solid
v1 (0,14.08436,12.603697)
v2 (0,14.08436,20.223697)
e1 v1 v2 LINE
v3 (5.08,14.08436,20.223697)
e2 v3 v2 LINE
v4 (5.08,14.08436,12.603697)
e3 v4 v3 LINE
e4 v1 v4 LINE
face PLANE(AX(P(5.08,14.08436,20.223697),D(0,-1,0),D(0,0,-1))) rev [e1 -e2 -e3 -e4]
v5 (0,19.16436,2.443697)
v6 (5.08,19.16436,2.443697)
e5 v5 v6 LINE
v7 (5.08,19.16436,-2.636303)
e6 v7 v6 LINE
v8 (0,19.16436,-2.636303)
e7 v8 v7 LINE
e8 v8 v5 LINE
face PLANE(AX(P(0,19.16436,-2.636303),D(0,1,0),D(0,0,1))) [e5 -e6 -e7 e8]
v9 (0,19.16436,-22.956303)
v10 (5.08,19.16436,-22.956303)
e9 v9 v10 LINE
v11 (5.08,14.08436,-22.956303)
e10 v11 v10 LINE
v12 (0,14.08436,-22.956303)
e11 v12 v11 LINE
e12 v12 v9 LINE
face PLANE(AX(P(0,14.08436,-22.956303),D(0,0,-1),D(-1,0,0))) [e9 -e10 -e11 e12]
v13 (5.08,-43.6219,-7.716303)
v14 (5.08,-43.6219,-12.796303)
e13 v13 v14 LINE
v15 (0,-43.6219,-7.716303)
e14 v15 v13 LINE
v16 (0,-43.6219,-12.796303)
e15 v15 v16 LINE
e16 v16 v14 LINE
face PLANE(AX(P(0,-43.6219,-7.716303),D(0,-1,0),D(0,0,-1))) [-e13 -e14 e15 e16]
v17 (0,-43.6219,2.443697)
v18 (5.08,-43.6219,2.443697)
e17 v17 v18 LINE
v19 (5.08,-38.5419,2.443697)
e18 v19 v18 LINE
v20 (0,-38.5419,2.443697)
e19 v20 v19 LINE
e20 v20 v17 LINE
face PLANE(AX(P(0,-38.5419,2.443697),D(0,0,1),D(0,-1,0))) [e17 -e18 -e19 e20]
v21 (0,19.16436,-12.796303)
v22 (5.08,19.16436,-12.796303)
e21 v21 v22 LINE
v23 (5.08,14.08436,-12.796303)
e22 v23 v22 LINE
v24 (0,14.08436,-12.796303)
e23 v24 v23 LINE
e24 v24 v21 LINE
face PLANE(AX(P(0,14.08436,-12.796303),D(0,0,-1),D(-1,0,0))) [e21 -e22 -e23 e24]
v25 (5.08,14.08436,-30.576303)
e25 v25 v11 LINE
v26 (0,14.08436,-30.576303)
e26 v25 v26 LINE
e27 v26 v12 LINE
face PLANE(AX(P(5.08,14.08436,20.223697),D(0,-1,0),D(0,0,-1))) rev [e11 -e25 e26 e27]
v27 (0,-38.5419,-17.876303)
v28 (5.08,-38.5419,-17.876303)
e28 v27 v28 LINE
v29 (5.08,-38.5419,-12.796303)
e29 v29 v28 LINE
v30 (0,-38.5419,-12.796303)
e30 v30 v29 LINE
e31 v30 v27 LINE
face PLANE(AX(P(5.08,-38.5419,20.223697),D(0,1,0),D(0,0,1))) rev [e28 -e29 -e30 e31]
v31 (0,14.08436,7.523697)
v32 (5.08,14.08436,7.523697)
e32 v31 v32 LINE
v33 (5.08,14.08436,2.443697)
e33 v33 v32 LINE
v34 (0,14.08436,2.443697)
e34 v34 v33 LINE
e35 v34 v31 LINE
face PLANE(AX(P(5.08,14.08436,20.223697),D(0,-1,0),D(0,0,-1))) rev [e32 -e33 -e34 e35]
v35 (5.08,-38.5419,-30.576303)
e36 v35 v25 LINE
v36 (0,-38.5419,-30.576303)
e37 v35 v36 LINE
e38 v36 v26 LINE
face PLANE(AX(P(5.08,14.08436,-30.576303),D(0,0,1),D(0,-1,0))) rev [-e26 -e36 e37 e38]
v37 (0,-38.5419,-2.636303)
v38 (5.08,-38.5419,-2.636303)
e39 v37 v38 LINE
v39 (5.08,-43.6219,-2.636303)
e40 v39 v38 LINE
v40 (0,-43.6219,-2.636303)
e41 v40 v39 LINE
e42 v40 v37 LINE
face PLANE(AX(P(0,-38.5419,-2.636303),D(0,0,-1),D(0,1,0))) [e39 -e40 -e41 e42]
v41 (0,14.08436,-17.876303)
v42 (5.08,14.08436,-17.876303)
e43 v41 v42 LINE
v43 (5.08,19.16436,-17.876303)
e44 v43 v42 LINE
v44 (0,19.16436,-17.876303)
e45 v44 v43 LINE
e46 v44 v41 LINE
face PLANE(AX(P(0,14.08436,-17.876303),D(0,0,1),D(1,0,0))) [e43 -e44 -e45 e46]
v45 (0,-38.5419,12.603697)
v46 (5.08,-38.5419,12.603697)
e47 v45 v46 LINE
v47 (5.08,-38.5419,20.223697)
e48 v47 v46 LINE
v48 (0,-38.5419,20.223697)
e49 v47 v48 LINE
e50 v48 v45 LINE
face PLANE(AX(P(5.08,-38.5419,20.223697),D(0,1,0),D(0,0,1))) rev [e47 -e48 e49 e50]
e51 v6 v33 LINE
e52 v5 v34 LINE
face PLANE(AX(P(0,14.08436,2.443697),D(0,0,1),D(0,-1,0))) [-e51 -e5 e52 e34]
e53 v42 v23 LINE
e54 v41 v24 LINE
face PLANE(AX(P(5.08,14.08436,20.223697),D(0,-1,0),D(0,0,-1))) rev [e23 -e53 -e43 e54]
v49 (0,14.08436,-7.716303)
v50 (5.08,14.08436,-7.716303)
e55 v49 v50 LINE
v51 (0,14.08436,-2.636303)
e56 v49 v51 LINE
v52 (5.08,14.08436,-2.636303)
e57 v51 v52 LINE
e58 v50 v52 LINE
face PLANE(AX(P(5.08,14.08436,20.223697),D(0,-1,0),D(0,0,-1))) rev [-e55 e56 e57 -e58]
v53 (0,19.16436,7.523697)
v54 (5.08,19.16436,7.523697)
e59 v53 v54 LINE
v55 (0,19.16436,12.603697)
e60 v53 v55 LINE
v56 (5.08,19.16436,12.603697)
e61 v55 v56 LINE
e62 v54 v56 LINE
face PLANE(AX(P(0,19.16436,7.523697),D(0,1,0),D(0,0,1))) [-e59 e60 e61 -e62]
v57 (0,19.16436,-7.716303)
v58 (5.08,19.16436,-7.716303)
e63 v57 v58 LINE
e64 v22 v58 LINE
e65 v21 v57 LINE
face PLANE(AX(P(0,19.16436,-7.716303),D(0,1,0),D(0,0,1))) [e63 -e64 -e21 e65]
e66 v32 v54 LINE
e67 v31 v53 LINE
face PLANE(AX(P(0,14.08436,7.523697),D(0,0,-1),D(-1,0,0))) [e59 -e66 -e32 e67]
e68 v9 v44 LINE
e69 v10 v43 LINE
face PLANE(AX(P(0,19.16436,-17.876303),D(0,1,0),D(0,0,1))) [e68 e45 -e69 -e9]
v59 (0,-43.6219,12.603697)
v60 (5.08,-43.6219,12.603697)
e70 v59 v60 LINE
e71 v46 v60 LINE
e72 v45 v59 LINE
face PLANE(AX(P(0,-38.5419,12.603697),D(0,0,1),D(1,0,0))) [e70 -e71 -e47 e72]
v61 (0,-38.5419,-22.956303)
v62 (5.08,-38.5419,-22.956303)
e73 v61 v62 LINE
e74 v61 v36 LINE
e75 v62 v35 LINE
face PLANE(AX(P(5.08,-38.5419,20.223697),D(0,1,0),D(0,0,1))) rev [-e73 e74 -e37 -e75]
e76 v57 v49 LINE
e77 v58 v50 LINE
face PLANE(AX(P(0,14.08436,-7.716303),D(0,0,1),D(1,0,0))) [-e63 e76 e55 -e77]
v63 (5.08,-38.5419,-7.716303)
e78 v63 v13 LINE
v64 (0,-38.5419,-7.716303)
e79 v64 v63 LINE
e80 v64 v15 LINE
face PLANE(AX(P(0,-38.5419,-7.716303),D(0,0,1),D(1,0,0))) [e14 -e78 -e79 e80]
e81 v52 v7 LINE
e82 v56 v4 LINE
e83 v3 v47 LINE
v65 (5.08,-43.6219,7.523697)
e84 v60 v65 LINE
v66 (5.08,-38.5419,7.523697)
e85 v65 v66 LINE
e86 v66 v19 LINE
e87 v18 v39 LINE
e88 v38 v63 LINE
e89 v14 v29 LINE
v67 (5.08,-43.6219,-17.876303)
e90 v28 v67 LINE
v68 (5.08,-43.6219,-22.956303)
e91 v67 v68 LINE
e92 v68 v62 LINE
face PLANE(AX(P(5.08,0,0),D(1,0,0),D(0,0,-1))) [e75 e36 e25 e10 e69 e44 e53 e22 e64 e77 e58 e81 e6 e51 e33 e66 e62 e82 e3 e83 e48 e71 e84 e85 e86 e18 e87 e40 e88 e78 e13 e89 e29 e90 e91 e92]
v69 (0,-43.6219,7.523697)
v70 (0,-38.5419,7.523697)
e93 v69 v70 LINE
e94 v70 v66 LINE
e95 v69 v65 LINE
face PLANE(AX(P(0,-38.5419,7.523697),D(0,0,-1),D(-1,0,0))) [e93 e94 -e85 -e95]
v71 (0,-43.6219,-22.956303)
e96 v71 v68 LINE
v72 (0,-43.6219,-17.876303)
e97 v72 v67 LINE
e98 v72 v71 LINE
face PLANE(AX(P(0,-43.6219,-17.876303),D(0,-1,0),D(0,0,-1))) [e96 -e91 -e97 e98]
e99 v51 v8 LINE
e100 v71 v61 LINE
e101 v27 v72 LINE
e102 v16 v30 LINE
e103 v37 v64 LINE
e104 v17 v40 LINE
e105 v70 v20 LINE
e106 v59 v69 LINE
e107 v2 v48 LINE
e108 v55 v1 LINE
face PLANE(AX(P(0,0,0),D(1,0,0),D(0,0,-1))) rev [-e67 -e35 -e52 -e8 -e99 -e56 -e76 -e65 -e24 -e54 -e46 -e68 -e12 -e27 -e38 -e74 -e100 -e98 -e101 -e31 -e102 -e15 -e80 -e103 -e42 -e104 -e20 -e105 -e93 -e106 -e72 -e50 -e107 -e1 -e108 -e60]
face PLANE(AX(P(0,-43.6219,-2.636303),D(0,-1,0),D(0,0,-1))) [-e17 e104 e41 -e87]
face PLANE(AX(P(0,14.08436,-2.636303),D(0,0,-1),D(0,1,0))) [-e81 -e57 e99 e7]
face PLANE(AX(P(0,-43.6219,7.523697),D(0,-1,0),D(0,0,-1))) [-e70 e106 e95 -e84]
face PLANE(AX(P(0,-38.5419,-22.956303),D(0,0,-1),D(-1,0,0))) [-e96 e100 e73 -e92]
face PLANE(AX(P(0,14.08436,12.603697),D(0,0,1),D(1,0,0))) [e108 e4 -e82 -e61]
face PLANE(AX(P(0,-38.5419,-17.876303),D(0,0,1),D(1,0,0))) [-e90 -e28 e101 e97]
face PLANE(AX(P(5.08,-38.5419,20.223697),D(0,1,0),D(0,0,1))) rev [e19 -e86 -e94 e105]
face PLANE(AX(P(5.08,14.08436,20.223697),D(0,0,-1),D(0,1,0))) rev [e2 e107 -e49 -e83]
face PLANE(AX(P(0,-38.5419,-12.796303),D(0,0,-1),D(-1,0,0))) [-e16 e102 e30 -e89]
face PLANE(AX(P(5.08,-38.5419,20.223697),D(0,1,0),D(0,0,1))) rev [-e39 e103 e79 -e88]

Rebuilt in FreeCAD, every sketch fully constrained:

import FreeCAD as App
import Part
import Sketcher
Q = App.Units.Quantity


def add_polygon(sketch, points):
    """Adds a closed chain of lines whose ends are joined by coincident constraints."""
    first, n = sketch.GeometryCount, len(points)
    for a, b in zip(points, points[1:] + points[:1]):
        sketch.addGeometry(Part.LineSegment(App.Vector(*a, 0), App.Vector(*b, 0)), False)
    for i in range(n):
        sketch.addConstraint(Sketcher.Constraint("Coincident", first + i, 2, first + (i + 1) % n, 1))

doc = App.newDocument("Part")
params = doc.addObject("Spreadsheet::Sheet", "Params")
for row, (alias, value) in enumerate([
    ("sketch1_height", "2 in"),
    ("pad1_length", "0.2 in"),
    ("sketch2_width", "0.2 in"),
    ("pad2_length", "0.2 in"),
], start=1):
    params.set(f"A{row}", alias)
    params.set(f"B{row}", "=" + value)
    params.setAlias(f"B{row}", alias)

body = doc.addObject("PartDesign::Body", "Body")

# Sketch on YZ plane
sketch1 = doc.addObject("Sketcher::SketchObject", "Sketch")
body.addObject(sketch1)
sketch1.AttachmentSupport = (doc.YZ_Plane, [""])
sketch1.MapMode = "FlatFace"
add_polygon(sketch1, [(14, 20), (-39, 20), (-39, -31), (14, -31)])  # lines 0-3
sketch1.addConstraint([
    Sketcher.Constraint("Horizontal", 0),
    Sketcher.Constraint("Vertical", 1),
    Sketcher.Constraint("Horizontal", 2),
    Sketcher.Constraint("Vertical", 3),
    Sketcher.Constraint("DistanceY", 1, 2, 1, 1, Q("2 in")),
    Sketcher.Constraint("DistanceX", 0, 2, 0, 1, Q("2.0719 in")),
    Sketcher.Constraint("DistanceX", 0, 2, -1, 1, Q("38.5419 mm")),
    Sketcher.Constraint("DistanceY", -1, 1, 0, 2, Q("20.223697 mm")),
])
sketch1.setExpression("Constraints[8]", "Params.sketch1_height")
pad1 = doc.addObject("PartDesign::Pad", "Pad")
body.addObject(pad1)
pad1.Profile = sketch1
pad1.setExpression("Length", "Params.pad1_length")

# Sketch on YZ plane
sketch2 = doc.addObject("Sketcher::SketchObject", "Sketch001")
body.addObject(sketch2)
sketch2.AttachmentSupport = (doc.YZ_Plane, [""])
sketch2.MapMode = "FlatFace"
sketch2.AttachmentOffset = App.Placement(App.Vector(0, 0, 0.2 * 25.4), App.Rotation())
add_polygon(sketch2, [(19, 13), (14, 13), (14, 8), (19, 8)])  # lines 0-3
add_polygon(sketch2, [(19, -8), (14, -8), (14, -13), (19, -13)])  # lines 4-7
add_polygon(sketch2, [(19, -18), (14, -18), (14, -23), (19, -23)])  # lines 8-11
add_polygon(sketch2, [(19, 2), (14, 2), (14, -3), (19, -3)])  # lines 12-15
add_polygon(sketch2, [(-39, 2), (-44, 2), (-44, -3), (-39, -3)])  # lines 16-19
add_polygon(sketch2, [(-39, 13), (-44, 13), (-44, 8), (-39, 8)])  # lines 20-23
add_polygon(sketch2, [(-39, -18), (-44, -18), (-44, -23), (-39, -23)])  # lines 24-27
add_polygon(sketch2, [(-39, -8), (-44, -8), (-44, -13), (-39, -13)])  # lines 28-31
sketch2.addConstraint([
    Sketcher.Constraint("Horizontal", 0),
    Sketcher.Constraint("Vertical", 1),
    Sketcher.Constraint("Horizontal", 2),
    Sketcher.Constraint("Vertical", 3),
    Sketcher.Constraint("Horizontal", 4),
    Sketcher.Constraint("Vertical", 5),
    Sketcher.Constraint("Horizontal", 6),
    Sketcher.Constraint("Vertical", 7),
    Sketcher.Constraint("Horizontal", 8),
    Sketcher.Constraint("Vertical", 9),
    Sketcher.Constraint("Horizontal", 10),
    Sketcher.Constraint("Vertical", 11),
    Sketcher.Constraint("Horizontal", 12),
    Sketcher.Constraint("Vertical", 13),
    Sketcher.Constraint("Horizontal", 14),
    Sketcher.Constraint("Vertical", 15),
    Sketcher.Constraint("Horizontal", 16),
    Sketcher.Constraint("Vertical", 17),
    Sketcher.Constraint("Horizontal", 18),
    Sketcher.Constraint("Vertical", 19),
    Sketcher.Constraint("Horizontal", 20),
    Sketcher.Constraint("Vertical", 21),
    Sketcher.Constraint("Horizontal", 22),
    Sketcher.Constraint("Vertical", 23),
    Sketcher.Constraint("Horizontal", 24),
    Sketcher.Constraint("Vertical", 25),
    Sketcher.Constraint("Horizontal", 26),
    Sketcher.Constraint("Vertical", 27),
    Sketcher.Constraint("Horizontal", 28),
    Sketcher.Constraint("Vertical", 29),
    Sketcher.Constraint("Horizontal", 30),
    Sketcher.Constraint("Vertical", 31),
    Sketcher.Constraint("Horizontal", 15, 2, 16, 2),
    Sketcher.Constraint("Horizontal", 14, 2, 17, 2),
    Sketcher.Constraint("Horizontal", 3, 2, 20, 2),
    Sketcher.Constraint("Horizontal", 2, 2, 21, 2),
    Sketcher.Constraint("Horizontal", 11, 2, 24, 2),
    Sketcher.Constraint("Horizontal", 10, 2, 25, 2),
    Sketcher.Constraint("Horizontal", 7, 2, 28, 2),
    Sketcher.Constraint("Horizontal", 6, 2, 29, 2),
    Sketcher.Constraint("Vertical", 1, 2, 4, 2),
    Sketcher.Constraint("Vertical", 3, 2, 6, 2),
    Sketcher.Constraint("Vertical", 5, 2, 8, 2),
    Sketcher.Constraint("Vertical", 7, 2, 10, 2),
    Sketcher.Constraint("Vertical", 9, 2, 12, 2),
    Sketcher.Constraint("Vertical", 11, 2, 14, 2),
    Sketcher.Constraint("Vertical", 17, 2, 20, 2),
    Sketcher.Constraint("Vertical", 19, 2, 22, 2),
    Sketcher.Constraint("Vertical", 21, 2, 24, 2),
    Sketcher.Constraint("Vertical", 23, 2, 26, 2),
    Sketcher.Constraint("Vertical", 25, 2, 28, 2),
    Sketcher.Constraint("Vertical", 27, 2, 30, 2),
    Sketcher.Constraint("Equal", 14, 16),
    Sketcher.Constraint("Equal", 30, 1),
    Sketcher.Constraint("Equal", 3, 5),
    Sketcher.Constraint("Equal", 7, 9),
    Sketcher.Constraint("Equal", 11, 13),
    Sketcher.Constraint("DistanceX", 0, 2, 0, 1, Q("0.2 in")),
    Sketcher.Constraint("DistanceY", 5, 2, 0, 2, Q("1 in")),
    Sketcher.Constraint("DistanceY", 8, 2, 1, 2, Q("1 in")),
    Sketcher.Constraint("DistanceY", 25, 2, 16, 2, Q("1 in")),
    Sketcher.Constraint("DistanceX", 16, 2, 12, 2, Q("2.2719 in")),
    Sketcher.Constraint("DistanceX", 16, 2, -1, 1, Q("43.6219 mm")),
    Sketcher.Constraint("DistanceY", -1, 1, 0, 2, Q("12.603697 mm")),
])
sketch2.setExpression("Constraints[89]", "Params.sketch2_width")
pad2 = doc.addObject("PartDesign::Pad", "Pad001")
body.addObject(pad2)
pad2.Profile = sketch2
pad2.setExpression("Length", "Params.pad2_length")
pad2.Reversed = True

doc.recompute()
